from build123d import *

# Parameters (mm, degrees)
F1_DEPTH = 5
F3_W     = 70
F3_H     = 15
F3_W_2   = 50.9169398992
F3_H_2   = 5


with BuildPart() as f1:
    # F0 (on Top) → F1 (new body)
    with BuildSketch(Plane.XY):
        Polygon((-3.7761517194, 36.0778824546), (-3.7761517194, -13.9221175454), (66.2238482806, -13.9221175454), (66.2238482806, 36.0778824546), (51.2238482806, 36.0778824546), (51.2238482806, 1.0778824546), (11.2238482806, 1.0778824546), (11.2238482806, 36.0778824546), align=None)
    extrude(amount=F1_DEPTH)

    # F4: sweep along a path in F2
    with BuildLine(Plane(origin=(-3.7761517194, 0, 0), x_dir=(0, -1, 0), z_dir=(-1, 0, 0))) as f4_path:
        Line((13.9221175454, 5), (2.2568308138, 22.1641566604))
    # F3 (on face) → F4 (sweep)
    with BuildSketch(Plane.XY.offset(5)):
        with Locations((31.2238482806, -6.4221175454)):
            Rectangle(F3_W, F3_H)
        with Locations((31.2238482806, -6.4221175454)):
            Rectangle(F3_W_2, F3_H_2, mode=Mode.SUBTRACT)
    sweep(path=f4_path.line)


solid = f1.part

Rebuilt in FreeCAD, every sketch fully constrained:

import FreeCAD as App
import Part
import Sketcher
from FreeCAD import Vector

doc = App.newDocument("Part")
body = doc.addObject("PartDesign::Body", "Body")

sketch1 = body.newObject("Sketcher::SketchObject", "Sketch")
sketch1.AttachmentSupport = (doc.getObject("XY_Plane"), [""])
sketch1.MapMode = "FlatFace"
sketch1.addGeometry(Part.LineSegment(Vector(-4, 36, 0), Vector(-4, -14, 0)), False)
sketch1.addGeometry(Part.LineSegment(Vector(-4, -14, 0), Vector(66, -14, 0)), False)
sketch1.addGeometry(Part.LineSegment(Vector(66, -14, 0), Vector(66, 36, 0)), False)
sketch1.addGeometry(Part.LineSegment(Vector(66, 36, 0), Vector(51, 36, 0)), False)
sketch1.addGeometry(Part.LineSegment(Vector(51, 36, 0), Vector(51, 1, 0)), False)
sketch1.addGeometry(Part.LineSegment(Vector(51, 1, 0), Vector(11, 1, 0)), False)
sketch1.addGeometry(Part.LineSegment(Vector(11, 1, 0), Vector(11, 36, 0)), False)
sketch1.addGeometry(Part.LineSegment(Vector(11, 36, 0), Vector(-4, 36, 0)), False)
sketch1.addConstraint(Sketcher.Constraint("Coincident", 0, 2, 1, 1))
sketch1.addConstraint(Sketcher.Constraint("Coincident", 1, 2, 2, 1))
sketch1.addConstraint(Sketcher.Constraint("Coincident", 2, 2, 3, 1))
sketch1.addConstraint(Sketcher.Constraint("Coincident", 3, 2, 4, 1))
sketch1.addConstraint(Sketcher.Constraint("Coincident", 4, 2, 5, 1))
sketch1.addConstraint(Sketcher.Constraint("Coincident", 5, 2, 6, 1))
sketch1.addConstraint(Sketcher.Constraint("Coincident", 6, 2, 7, 1))
sketch1.addConstraint(Sketcher.Constraint("Coincident", 7, 2, 0, 1))
sketch1.addConstraint(Sketcher.Constraint("Vertical", 0))
sketch1.addConstraint(Sketcher.Constraint("Horizontal", 1))
sketch1.addConstraint(Sketcher.Constraint("Vertical", 2))
sketch1.addConstraint(Sketcher.Constraint("Horizontal", 3))
sketch1.addConstraint(Sketcher.Constraint("Vertical", 4))
sketch1.addConstraint(Sketcher.Constraint("Horizontal", 5))
sketch1.addConstraint(Sketcher.Constraint("Vertical", 6))
sketch1.addConstraint(Sketcher.Constraint("Horizontal", 7))
sketch1.addConstraint(Sketcher.Constraint("Horizontal", 3, 2, 6, 2))
sketch1.addConstraint(Sketcher.Constraint("Equal", 3, 7))
sketch1.addConstraint(Sketcher.Constraint("DistanceX", 1, 1, 1, 2, 70.0))
sketch1.addConstraint(Sketcher.Constraint("DistanceX", 3, 2, 3, 1, 15.0))
sketch1.addConstraint(Sketcher.Constraint("DistanceY", 0, 2, 0, 1, 50.0))
sketch1.addConstraint(Sketcher.Constraint("DistanceY", 4, 2, 4, 1, 35.0))
sketch1.addConstraint(Sketcher.Constraint("DistanceX", 0, 2, -1, 1, 3.776152))
sketch1.addConstraint(Sketcher.Constraint("DistanceY", 0, 2, -1, 1, 13.922118))
pad1 = body.newObject("PartDesign::Pad", "Pad")
pad1.Profile = sketch1
pad1.Length = 5

sketch2 = body.newObject("Sketcher::SketchObject", "Sketch001")
sketch2.AttachmentSupport = (doc.getObject("XY_Plane"), [""])
sketch2.MapMode = "FlatFace"
sketch2.AttachmentOffset = App.Placement(Vector(0, 0, 5), App.Rotation())
sketch2.addGeometry(Part.LineSegment(Vector(-4, 1, 0), Vector(-4, -14, 0)), False)
sketch2.addGeometry(Part.LineSegment(Vector(-4, -14, 0), Vector(66, -14, 0)), False)
sketch2.addGeometry(Part.LineSegment(Vector(66, -14, 0), Vector(66, 1, 0)), False)
sketch2.addGeometry(Part.LineSegment(Vector(66, 1, 0), Vector(-4, 1, 0)), False)
sketch2.addGeometry(Part.LineSegment(Vector(57, -9, 0), Vector(6, -9, 0)), False)
sketch2.addGeometry(Part.LineSegment(Vector(6, -9, 0), Vector(6, -4, 0)), False)
sketch2.addGeometry(Part.LineSegment(Vector(6, -4, 0), Vector(57, -4, 0)), False)
sketch2.addGeometry(Part.LineSegment(Vector(57, -4, 0), Vector(57, -9, 0)), False)
sketch2.addConstraint(Sketcher.Constraint("Coincident", 0, 2, 1, 1))
sketch2.addConstraint(Sketcher.Constraint("Coincident", 1, 2, 2, 1))
sketch2.addConstraint(Sketcher.Constraint("Coincident", 2, 2, 3, 1))
sketch2.addConstraint(Sketcher.Constraint("Coincident", 3, 2, 0, 1))
sketch2.addConstraint(Sketcher.Constraint("Coincident", 4, 2, 5, 1))
sketch2.addConstraint(Sketcher.Constraint("Coincident", 5, 2, 6, 1))
sketch2.addConstraint(Sketcher.Constraint("Coincident", 6, 2, 7, 1))
sketch2.addConstraint(Sketcher.Constraint("Coincident", 7, 2, 4, 1))
sketch2.addConstraint(Sketcher.Constraint("Vertical", 0))
sketch2.addConstraint(Sketcher.Constraint("Horizontal", 1))
sketch2.addConstraint(Sketcher.Constraint("Vertical", 2))
sketch2.addConstraint(Sketcher.Constraint("Horizontal", 3))
sketch2.addConstraint(Sketcher.Constraint("Horizontal", 4))
sketch2.addConstraint(Sketcher.Constraint("Vertical", 5))
sketch2.addConstraint(Sketcher.Constraint("Horizontal", 6))
sketch2.addConstraint(Sketcher.Constraint("Vertical", 7))
sketch2.addConstraint(Sketcher.Constraint("DistanceX", 1, 1, 1, 2, 70.0))
sketch2.addConstraint(Sketcher.Constraint("DistanceY", 0, 2, 0, 1, 15.0))
sketch2.addConstraint(Sketcher.Constraint("DistanceY", 5, 1, 5, 2, 5.0))
sketch2.addConstraint(Sketcher.Constraint("DistanceY", 0, 2, 4, 2, 5.0))
sketch2.addConstraint(Sketcher.Constraint("DistanceX", 4, 2, 4, 1, 50.91694))
sketch2.addConstraint(Sketcher.Constraint("DistanceX", 0, 2, -1, 1, 3.776152))
sketch2.addConstraint(Sketcher.Constraint("DistanceX", -1, 1, 4, 2, 5.765378))
sketch2.addConstraint(Sketcher.Constraint("DistanceY", 0, 2, -1, 1, 13.922118))

sketch3 = body.newObject("Sketcher::SketchObject", "Sketch002")
sketch3.Placement = App.Placement(Vector(0, -11.847799, 8.052127), App.Rotation(Vector(0, 0.562101108, 0.827068524), Vector(0.999999999, 0, 0), Vector(0, 0.827068524, -0.562101108), "ZXY"))
sketch3.addGeometry(Part.LineSegment(Vector(-4, -4, 0), Vector(17, -4, 0)), False)
sketch3.addConstraint(Sketcher.Constraint("Horizontal", 0))
sketch3.addConstraint(Sketcher.Constraint("DistanceX", 0, 1, 0, 2, 20.753004))
sketch3.addConstraint(Sketcher.Constraint("DistanceY", 0, 1, -1, 1, 3.776152))
sketch3.addConstraint(Sketcher.Constraint("DistanceX", -1, 1, 0, 2, 17.062709))
doc.recompute()

additivepipe = body.newObject("PartDesign::AdditivePipe", "AdditivePipe")
additivepipe.Profile = sketch2
additivepipe.Spine = (sketch3, ["Edge1"])

doc.recompute()
